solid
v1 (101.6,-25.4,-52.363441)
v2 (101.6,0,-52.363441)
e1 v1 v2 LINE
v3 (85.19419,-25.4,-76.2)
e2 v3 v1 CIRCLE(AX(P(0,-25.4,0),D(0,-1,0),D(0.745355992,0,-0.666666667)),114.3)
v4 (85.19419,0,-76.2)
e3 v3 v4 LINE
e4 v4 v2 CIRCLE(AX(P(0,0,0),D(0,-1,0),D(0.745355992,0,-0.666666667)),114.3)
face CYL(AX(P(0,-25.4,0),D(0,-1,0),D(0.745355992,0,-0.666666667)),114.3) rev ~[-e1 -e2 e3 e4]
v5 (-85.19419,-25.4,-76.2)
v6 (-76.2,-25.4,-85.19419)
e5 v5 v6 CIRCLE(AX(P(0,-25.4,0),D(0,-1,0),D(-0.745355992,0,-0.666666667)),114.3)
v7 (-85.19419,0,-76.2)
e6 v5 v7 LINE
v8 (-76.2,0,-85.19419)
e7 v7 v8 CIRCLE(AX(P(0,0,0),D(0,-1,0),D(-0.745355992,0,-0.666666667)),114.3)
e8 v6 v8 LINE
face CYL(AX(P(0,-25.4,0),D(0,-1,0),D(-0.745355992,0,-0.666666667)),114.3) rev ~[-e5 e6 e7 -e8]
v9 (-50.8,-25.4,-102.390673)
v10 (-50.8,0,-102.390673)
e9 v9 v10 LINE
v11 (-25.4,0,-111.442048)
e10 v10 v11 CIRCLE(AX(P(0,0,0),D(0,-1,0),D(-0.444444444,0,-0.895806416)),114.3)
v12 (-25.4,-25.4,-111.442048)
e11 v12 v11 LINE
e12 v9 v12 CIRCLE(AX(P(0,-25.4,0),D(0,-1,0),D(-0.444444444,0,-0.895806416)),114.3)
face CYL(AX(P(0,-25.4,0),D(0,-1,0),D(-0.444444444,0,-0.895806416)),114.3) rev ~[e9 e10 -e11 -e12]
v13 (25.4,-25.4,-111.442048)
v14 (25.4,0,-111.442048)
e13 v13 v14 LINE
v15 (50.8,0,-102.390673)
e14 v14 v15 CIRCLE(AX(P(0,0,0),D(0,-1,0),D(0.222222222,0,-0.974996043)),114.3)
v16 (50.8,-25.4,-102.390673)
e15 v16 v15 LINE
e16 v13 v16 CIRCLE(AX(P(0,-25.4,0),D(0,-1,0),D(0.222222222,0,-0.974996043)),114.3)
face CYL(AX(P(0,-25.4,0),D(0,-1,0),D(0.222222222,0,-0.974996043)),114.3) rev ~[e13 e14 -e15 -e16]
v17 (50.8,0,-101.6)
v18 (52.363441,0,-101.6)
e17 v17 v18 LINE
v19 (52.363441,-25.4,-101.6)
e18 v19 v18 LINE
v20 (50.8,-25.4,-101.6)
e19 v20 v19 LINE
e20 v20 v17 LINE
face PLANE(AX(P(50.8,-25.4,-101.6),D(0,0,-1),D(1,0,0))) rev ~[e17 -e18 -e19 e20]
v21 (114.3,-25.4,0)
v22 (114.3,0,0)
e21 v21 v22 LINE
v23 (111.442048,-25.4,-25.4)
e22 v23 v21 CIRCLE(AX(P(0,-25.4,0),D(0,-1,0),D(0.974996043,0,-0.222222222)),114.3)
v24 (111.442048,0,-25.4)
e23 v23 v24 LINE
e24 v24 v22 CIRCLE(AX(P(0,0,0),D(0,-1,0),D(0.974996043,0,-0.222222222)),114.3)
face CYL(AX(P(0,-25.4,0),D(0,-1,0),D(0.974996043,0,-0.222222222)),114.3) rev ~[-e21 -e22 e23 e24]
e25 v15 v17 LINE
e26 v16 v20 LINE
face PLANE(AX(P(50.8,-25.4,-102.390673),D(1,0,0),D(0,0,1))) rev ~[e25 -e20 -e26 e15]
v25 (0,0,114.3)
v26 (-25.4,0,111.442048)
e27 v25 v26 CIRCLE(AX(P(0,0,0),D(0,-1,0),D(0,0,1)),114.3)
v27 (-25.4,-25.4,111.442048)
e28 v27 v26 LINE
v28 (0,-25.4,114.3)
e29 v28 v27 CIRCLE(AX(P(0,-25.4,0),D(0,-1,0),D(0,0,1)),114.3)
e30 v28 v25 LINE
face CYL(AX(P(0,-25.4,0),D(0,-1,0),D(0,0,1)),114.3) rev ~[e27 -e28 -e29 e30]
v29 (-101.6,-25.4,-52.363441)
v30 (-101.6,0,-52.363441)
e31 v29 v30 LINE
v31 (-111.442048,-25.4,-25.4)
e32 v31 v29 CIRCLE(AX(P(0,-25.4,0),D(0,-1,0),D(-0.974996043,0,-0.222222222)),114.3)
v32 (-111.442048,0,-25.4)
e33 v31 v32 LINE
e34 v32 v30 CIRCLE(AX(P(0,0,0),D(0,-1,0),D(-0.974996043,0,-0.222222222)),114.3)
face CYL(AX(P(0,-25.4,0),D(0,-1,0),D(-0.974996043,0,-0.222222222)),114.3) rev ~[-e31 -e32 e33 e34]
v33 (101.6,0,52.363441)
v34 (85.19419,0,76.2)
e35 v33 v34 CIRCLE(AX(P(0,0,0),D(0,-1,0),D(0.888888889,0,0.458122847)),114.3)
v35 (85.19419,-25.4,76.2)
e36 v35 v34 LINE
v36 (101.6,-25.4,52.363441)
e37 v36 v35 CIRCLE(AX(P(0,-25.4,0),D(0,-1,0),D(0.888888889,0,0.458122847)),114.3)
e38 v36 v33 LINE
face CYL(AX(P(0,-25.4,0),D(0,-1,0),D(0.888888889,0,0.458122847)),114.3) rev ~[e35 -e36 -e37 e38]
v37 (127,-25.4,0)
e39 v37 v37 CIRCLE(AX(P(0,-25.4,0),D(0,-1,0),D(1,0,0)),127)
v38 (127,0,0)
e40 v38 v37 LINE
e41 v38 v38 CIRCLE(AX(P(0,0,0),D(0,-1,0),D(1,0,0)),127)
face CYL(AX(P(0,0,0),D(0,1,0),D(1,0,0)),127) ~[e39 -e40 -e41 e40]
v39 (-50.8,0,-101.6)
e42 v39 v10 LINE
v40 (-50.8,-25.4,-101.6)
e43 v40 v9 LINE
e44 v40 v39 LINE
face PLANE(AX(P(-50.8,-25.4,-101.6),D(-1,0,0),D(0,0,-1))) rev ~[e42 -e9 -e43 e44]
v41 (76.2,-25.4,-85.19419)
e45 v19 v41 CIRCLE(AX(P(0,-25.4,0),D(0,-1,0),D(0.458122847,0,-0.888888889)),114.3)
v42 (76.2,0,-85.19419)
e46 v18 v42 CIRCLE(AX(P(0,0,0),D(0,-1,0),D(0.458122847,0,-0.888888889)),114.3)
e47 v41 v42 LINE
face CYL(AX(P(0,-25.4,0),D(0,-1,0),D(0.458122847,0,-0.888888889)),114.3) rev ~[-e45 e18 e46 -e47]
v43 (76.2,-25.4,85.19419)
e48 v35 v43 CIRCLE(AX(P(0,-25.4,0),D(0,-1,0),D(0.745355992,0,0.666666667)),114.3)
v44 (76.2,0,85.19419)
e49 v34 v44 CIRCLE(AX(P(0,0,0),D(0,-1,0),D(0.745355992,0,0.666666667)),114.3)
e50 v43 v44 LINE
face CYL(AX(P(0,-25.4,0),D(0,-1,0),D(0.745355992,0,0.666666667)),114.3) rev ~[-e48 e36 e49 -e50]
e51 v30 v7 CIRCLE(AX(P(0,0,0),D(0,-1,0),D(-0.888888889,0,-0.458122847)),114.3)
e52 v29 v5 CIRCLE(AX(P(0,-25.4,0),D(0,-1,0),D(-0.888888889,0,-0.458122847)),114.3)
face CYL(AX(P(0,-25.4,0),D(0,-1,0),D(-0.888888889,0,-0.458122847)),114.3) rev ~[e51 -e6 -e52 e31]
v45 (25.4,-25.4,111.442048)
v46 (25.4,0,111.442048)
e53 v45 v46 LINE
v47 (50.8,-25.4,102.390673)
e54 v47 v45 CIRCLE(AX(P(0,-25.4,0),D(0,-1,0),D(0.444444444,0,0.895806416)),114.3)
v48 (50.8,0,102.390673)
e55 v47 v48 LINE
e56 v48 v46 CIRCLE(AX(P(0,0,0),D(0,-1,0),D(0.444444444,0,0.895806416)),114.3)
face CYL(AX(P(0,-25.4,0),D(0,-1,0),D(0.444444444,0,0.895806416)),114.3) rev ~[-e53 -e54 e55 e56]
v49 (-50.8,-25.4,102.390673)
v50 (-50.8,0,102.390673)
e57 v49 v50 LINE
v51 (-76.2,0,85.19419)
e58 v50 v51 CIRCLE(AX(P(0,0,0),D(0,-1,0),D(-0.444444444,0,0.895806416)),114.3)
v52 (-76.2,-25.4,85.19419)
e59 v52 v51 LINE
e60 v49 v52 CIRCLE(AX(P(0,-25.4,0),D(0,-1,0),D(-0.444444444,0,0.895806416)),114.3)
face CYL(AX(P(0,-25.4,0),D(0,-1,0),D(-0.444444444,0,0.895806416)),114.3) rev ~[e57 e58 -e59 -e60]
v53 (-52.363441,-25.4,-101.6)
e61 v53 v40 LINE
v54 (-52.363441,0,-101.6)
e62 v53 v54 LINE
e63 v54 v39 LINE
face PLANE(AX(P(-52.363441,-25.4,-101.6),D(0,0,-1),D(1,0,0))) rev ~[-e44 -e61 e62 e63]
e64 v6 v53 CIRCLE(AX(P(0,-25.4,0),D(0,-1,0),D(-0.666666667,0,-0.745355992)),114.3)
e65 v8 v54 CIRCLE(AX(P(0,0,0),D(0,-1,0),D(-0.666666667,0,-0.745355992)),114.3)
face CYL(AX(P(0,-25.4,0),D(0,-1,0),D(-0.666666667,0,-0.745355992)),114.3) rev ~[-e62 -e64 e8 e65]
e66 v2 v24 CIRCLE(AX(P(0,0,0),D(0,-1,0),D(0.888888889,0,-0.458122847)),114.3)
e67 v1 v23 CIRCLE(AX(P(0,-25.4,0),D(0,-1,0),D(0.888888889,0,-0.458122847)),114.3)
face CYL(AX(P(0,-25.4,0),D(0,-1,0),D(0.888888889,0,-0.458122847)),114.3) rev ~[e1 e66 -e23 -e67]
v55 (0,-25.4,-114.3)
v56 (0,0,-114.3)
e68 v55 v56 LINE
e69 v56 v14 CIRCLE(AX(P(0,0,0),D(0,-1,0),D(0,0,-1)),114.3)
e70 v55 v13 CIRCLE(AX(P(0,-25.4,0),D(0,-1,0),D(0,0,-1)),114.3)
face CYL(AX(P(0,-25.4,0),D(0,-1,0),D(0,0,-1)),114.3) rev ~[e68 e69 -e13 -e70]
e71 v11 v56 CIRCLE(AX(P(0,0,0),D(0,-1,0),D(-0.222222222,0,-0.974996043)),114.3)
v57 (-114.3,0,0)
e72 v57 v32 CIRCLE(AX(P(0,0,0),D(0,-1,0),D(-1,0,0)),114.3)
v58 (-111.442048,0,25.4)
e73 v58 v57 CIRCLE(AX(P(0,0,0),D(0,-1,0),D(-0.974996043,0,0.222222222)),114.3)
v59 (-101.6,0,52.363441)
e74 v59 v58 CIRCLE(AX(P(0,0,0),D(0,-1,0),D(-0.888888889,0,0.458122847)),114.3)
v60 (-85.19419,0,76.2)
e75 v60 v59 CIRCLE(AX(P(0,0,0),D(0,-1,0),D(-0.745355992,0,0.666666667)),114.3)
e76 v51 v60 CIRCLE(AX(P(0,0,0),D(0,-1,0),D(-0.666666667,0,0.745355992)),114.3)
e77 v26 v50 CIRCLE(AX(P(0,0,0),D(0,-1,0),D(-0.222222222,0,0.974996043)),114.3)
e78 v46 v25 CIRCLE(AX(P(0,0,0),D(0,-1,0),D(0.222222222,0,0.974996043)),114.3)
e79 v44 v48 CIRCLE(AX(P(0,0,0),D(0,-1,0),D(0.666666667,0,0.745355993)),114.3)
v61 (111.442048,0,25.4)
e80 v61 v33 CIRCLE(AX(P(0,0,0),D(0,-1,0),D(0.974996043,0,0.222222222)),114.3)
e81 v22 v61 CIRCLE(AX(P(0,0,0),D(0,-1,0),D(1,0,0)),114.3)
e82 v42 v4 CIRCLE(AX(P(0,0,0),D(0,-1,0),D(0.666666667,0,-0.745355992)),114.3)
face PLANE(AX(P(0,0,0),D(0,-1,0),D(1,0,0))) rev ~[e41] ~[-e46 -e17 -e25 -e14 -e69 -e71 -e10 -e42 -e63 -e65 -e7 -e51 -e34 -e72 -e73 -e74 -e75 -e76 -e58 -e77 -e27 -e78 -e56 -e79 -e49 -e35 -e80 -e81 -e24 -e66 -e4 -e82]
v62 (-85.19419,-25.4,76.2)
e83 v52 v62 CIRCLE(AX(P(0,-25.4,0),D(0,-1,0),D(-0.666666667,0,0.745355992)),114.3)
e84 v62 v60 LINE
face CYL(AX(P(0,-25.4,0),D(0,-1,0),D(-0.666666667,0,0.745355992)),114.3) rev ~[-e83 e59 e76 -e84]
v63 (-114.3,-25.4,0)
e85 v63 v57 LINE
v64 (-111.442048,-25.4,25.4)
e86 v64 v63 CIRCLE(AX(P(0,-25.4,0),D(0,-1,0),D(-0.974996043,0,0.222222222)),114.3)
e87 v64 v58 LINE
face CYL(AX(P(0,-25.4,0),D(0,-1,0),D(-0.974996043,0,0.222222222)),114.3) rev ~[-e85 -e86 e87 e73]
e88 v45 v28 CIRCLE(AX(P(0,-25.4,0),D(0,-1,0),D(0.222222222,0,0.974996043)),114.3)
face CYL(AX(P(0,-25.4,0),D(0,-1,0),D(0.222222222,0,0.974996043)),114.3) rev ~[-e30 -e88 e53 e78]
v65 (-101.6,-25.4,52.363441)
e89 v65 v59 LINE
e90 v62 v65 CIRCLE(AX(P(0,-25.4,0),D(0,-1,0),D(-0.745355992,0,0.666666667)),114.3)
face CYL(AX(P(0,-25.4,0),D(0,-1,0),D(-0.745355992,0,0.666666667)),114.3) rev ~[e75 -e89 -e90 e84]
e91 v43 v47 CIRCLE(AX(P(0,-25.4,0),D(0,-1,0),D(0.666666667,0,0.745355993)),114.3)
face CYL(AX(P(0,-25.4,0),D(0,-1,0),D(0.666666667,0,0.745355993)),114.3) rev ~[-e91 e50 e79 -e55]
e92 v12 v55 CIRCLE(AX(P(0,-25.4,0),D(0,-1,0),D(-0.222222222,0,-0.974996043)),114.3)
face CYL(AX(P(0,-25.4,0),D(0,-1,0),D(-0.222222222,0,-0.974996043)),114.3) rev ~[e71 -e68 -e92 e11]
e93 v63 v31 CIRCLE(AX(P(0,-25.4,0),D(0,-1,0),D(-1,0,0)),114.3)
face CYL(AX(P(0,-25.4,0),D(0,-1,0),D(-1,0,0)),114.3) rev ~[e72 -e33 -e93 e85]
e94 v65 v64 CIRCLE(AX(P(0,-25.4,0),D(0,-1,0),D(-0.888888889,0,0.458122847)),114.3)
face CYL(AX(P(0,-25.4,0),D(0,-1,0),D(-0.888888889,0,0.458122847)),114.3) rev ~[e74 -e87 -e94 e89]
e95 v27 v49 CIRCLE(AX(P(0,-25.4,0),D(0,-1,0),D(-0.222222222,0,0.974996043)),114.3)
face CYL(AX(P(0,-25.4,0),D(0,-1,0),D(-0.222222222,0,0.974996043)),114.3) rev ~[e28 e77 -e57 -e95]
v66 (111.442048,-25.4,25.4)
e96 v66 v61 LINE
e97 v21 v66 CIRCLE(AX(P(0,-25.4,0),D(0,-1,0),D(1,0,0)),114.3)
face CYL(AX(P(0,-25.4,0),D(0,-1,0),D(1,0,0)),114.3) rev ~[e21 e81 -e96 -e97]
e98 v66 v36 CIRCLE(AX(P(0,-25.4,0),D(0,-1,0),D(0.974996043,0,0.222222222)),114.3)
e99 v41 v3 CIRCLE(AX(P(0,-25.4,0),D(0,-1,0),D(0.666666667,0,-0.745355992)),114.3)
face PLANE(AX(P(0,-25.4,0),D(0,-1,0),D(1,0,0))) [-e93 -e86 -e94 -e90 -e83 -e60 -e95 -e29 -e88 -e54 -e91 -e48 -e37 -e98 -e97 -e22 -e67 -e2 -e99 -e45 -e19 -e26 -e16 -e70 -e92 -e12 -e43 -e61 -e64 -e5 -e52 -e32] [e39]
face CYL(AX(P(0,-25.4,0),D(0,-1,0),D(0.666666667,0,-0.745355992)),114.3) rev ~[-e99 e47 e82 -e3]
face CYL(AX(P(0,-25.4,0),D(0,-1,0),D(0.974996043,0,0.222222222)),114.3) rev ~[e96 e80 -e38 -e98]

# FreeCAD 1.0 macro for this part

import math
import FreeCAD as App
import Part
import Sketcher
Q = App.Units.Quantity

doc = App.newDocument("Part")
body = doc.addObject("PartDesign::Body", "Body")

sketch1 = body.newObject("Sketcher::SketchObject", "Sketch")
sketch1.AttachmentSupport = (doc.getObject("XZ_Plane"), [""])
sketch1.MapMode = "FlatFace"
sketch1.addGeometry(Part.Circle(App.Vector(0, 0, 0), App.Vector(0, 0, 1), 127), False)
sketch1.addConstraint(Sketcher.Constraint("Coincident", 0, 3, -1, 1))
sketch1.addConstraint(Sketcher.Constraint("Diameter", 0, Q("10 in")))
pad1 = body.newObject("PartDesign::Pad", "Pad")
pad1.Profile = sketch1
pad1.Length = Q("1 in")

sketch2 = body.newObject("Sketcher::SketchObject", "Sketch001")
sketch2.AttachmentSupport = (doc.getObject("XZ_Plane"), [""])
sketch2.MapMode = "FlatFace"
sketch2.AttachmentOffset = App.Placement(App.Vector(0, 0, 1 * 25.4), App.Rotation())
sketch2.addGeometry(Part.ArcOfCircle(Part.Circle(App.Vector(0, 0, 0), App.Vector(0, 0, 1), 114.3), math.radians(167.16), math.radians(180)), False)
sketch2.addGeometry(Part.ArcOfCircle(Part.Circle(App.Vector(0, 0, 0), App.Vector(0, 0, 1), 114.3), math.radians(180), math.radians(192.84)), False)
sketch2.addGeometry(Part.ArcOfCircle(Part.Circle(App.Vector(0, 0, 0), App.Vector(0, 0, 1), 114.3), math.radians(-167.16), math.radians(-152.73)), False)
sketch2.addGeometry(Part.ArcOfCircle(Part.Circle(App.Vector(0, 0, 0), App.Vector(0, 0, 1), 114.3), math.radians(-152.73), math.radians(-138.19)), False)
sketch2.addGeometry(Part.ArcOfCircle(Part.Circle(App.Vector(0, 0, 0), App.Vector(0, 0, 1), 114.3), math.radians(-138.19), math.radians(-131.81)), False)
sketch2.addGeometry(Part.ArcOfCircle(Part.Circle(App.Vector(0, 0, 0), App.Vector(0, 0, 1), 114.3), math.radians(-131.81), math.radians(-117.27)), False)
sketch2.addGeometry(Part.LineSegment(App.Vector(-52.4, -101.6, 0), App.Vector(-50.8, -101.6, 0)), False)
sketch2.addGeometry(Part.LineSegment(App.Vector(-50.8, -101.6, 0), App.Vector(-50.8, -102.4, 0)), False)
sketch2.addGeometry(Part.ArcOfCircle(Part.Circle(App.Vector(0, 0, 0), App.Vector(0, 0, 1), 114.3), math.radians(-116.39), math.radians(-102.84)), False)
sketch2.addGeometry(Part.ArcOfCircle(Part.Circle(App.Vector(0, 0, 0), App.Vector(0, 0, 1), 114.3), math.radians(-102.84), math.radians(-90)), False)
sketch2.addGeometry(Part.ArcOfCircle(Part.Circle(App.Vector(0, 0, 0), App.Vector(0, 0, 1), 114.3), math.radians(-90), math.radians(-77.16)), False)
sketch2.addGeometry(Part.ArcOfCircle(Part.Circle(App.Vector(0, 0, 0), App.Vector(0, 0, 1), 114.3), math.radians(-77.16), math.radians(-63.61)), False)
sketch2.addGeometry(Part.LineSegment(App.Vector(50.8, -102.4, 0), App.Vector(50.8, -101.6, 0)), False)
sketch2.addGeometry(Part.LineSegment(App.Vector(50.8, -101.6, 0), App.Vector(52.4, -101.6, 0)), False)
sketch2.addGeometry(Part.ArcOfCircle(Part.Circle(App.Vector(0, 0, 0), App.Vector(0, 0, 1), 114.3), math.radians(-62.73), math.radians(-48.19)), False)
sketch2.addGeometry(Part.ArcOfCircle(Part.Circle(App.Vector(0, 0, 0), App.Vector(0, 0, 1), 114.3), math.radians(-48.19), math.radians(-41.81)), False)
sketch2.addGeometry(Part.ArcOfCircle(Part.Circle(App.Vector(0, 0, 0), App.Vector(0, 0, 1), 114.3), math.radians(-41.81), math.radians(-27.27)), False)
sketch2.addGeometry(Part.ArcOfCircle(Part.Circle(App.Vector(0, 0, 0), App.Vector(0, 0, 1), 114.3), math.radians(-27.27), math.radians(-12.84)), False)
sketch2.addGeometry(Part.ArcOfCircle(Part.Circle(App.Vector(0, 0, 0), App.Vector(0, 0, 1), 114.3), math.radians(-12.84), math.radians(0)), False)
sketch2.addGeometry(Part.ArcOfCircle(Part.Circle(App.Vector(0, 0, 0), App.Vector(0, 0, 1), 114.3), math.radians(0), math.radians(12.84)), False)
sketch2.addGeometry(Part.ArcOfCircle(Part.Circle(App.Vector(0, 0, 0), App.Vector(0, 0, 1), 114.3), math.radians(12.84), math.radians(27.27)), False)
sketch2.addGeometry(Part.ArcOfCircle(Part.Circle(App.Vector(0, 0, 0), App.Vector(0, 0, 1), 114.3), math.radians(27.27), math.radians(41.81)), False)
sketch2.addGeometry(Part.ArcOfCircle(Part.Circle(App.Vector(0, 0, 0), App.Vector(0, 0, 1), 114.3), math.radians(41.81), math.radians(48.19)), False)
sketch2.addGeometry(Part.ArcOfCircle(Part.Circle(App.Vector(0, 0, 0), App.Vector(0, 0, 1), 114.3), math.radians(48.19), math.radians(63.61)), False)
sketch2.addGeometry(Part.ArcOfCircle(Part.Circle(App.Vector(0, 0, 0), App.Vector(0, 0, 1), 114.3), math.radians(63.61), math.radians(77.16)), False)
sketch2.addGeometry(Part.ArcOfCircle(Part.Circle(App.Vector(0, 0, 0), App.Vector(0, 0, 1), 114.3), math.radians(77.16), math.radians(90)), False)
sketch2.addGeometry(Part.ArcOfCircle(Part.Circle(App.Vector(0, 0, 0), App.Vector(0, 0, 1), 114.3), math.radians(90), math.radians(102.84)), False)
sketch2.addGeometry(Part.ArcOfCircle(Part.Circle(App.Vector(0, 0, 0), App.Vector(0, 0, 1), 114.3), math.radians(102.84), math.radians(116.39)), False)
sketch2.addGeometry(Part.ArcOfCircle(Part.Circle(App.Vector(0, 0, 0), App.Vector(0, 0, 1), 114.3), math.radians(116.39), math.radians(131.81)), False)
sketch2.addGeometry(Part.ArcOfCircle(Part.Circle(App.Vector(0, 0, 0), App.Vector(0, 0, 1), 114.3), math.radians(131.81), math.radians(138.19)), False)
sketch2.addGeometry(Part.ArcOfCircle(Part.Circle(App.Vector(0, 0, 0), App.Vector(0, 0, 1), 114.3), math.radians(138.19), math.radians(152.73)), False)
sketch2.addGeometry(Part.ArcOfCircle(Part.Circle(App.Vector(0, 0, 0), App.Vector(0, 0, 1), 114.3), math.radians(152.73), math.radians(167.16)), False)
sketch2.addConstraint(Sketcher.Constraint("Tangent", 0, 2, 1, 1))
sketch2.addConstraint(Sketcher.Constraint("Tangent", 1, 2, 2, 1))
sketch2.addConstraint(Sketcher.Constraint("Tangent", 2, 2, 3, 1))
sketch2.addConstraint(Sketcher.Constraint("Tangent", 3, 2, 4, 1))
sketch2.addConstraint(Sketcher.Constraint("Tangent", 4, 2, 5, 1))
sketch2.addConstraint(Sketcher.Constraint("Coincident", 5, 2, 6, 1))
sketch2.addConstraint(Sketcher.Constraint("Coincident", 6, 2, 7, 1))
sketch2.addConstraint(Sketcher.Constraint("Coincident", 7, 2, 8, 1))
sketch2.addConstraint(Sketcher.Constraint("Tangent", 8, 2, 9, 1))
sketch2.addConstraint(Sketcher.Constraint("Tangent", 9, 2, 10, 1))
sketch2.addConstraint(Sketcher.Constraint("Tangent", 10, 2, 11, 1))
sketch2.addConstraint(Sketcher.Constraint("Coincident", 11, 2, 12, 1))
sketch2.addConstraint(Sketcher.Constraint("Coincident", 12, 2, 13, 1))
sketch2.addConstraint(Sketcher.Constraint("Coincident", 13, 2, 14, 1))
sketch2.addConstraint(Sketcher.Constraint("Tangent", 14, 2, 15, 1))
sketch2.addConstraint(Sketcher.Constraint("Tangent", 15, 2, 16, 1))
sketch2.addConstraint(Sketcher.Constraint("Tangent", 16, 2, 17, 1))
sketch2.addConstraint(Sketcher.Constraint("Tangent", 17, 2, 18, 1))
sketch2.addConstraint(Sketcher.Constraint("Tangent", 18, 2, 19, 1))
sketch2.addConstraint(Sketcher.Constraint("Tangent", 19, 2, 20, 1))
sketch2.addConstraint(Sketcher.Constraint("Tangent", 20, 2, 21, 1))
sketch2.addConstraint(Sketcher.Constraint("Tangent", 21, 2, 22, 1))
sketch2.addConstraint(Sketcher.Constraint("Tangent", 22, 2, 23, 1))
sketch2.addConstraint(Sketcher.Constraint("Tangent", 23, 2, 24, 1))
sketch2.addConstraint(Sketcher.Constraint("Tangent", 24, 2, 25, 1))
sketch2.addConstraint(Sketcher.Constraint("Tangent", 25, 2, 26, 1))
sketch2.addConstraint(Sketcher.Constraint("Tangent", 26, 2, 27, 1))
sketch2.addConstraint(Sketcher.Constraint("Tangent", 27, 2, 28, 1))
sketch2.addConstraint(Sketcher.Constraint("Tangent", 28, 2, 29, 1))
sketch2.addConstraint(Sketcher.Constraint("Tangent", 29, 2, 30, 1))
sketch2.addConstraint(Sketcher.Constraint("Tangent", 30, 2, 31, 1))
sketch2.addConstraint(Sketcher.Constraint("Tangent", 31, 2, 0, 1))
sketch2.addConstraint(Sketcher.Constraint("Horizontal", 6))
sketch2.addConstraint(Sketcher.Constraint("Vertical", 7))
sketch2.addConstraint(Sketcher.Constraint("Vertical", 12))
sketch2.addConstraint(Sketcher.Constraint("Horizontal", 13))
sketch2.addConstraint(Sketcher.Constraint("Coincident", 0, 3, -1, 1))
sketch2.addConstraint(Sketcher.Constraint("Coincident", 2, 3, -1, 1))
sketch2.addConstraint(Sketcher.Constraint("Coincident", 4, 3, -1, 1))
sketch2.addConstraint(Sketcher.Constraint("Coincident", 8, 3, -1, 1))
sketch2.addConstraint(Sketcher.Constraint("Coincident", 10, 3, -1, 1))
sketch2.addConstraint(Sketcher.Constraint("Coincident", 14, 3, -1, 1))
sketch2.addConstraint(Sketcher.Constraint("Coincident", 16, 3, -1, 1))
sketch2.addConstraint(Sketcher.Constraint("Coincident", 18, 3, -1, 1))
sketch2.addConstraint(Sketcher.Constraint("Coincident", 20, 3, -1, 1))
sketch2.addConstraint(Sketcher.Constraint("Coincident", 22, 3, -1, 1))
sketch2.addConstraint(Sketcher.Constraint("Coincident", 24, 3, -1, 1))
sketch2.addConstraint(Sketcher.Constraint("Coincident", 26, 3, -1, 1))
sketch2.addConstraint(Sketcher.Constraint("Coincident", 28, 3, -1, 1))
sketch2.addConstraint(Sketcher.Constraint("Coincident", 30, 3, -1, 1))
sketch2.addConstraint(Sketcher.Constraint("Equal", 4, 5))
sketch2.addConstraint(Sketcher.Constraint("Equal", 5, 8))
sketch2.addConstraint(Sketcher.Constraint("Equal", 10, 11))
sketch2.addConstraint(Sketcher.Constraint("Symmetric", 6, 2, 12, 2, -2))
sketch2.addConstraint(Sketcher.Constraint("PointOnObject", 0, 2, -1))
sketch2.addConstraint(Sketcher.Constraint("PointOnObject", 9, 2, -2))
sketch2.addConstraint(Sketcher.Constraint("PointOnObject", 18, 2, -1))
sketch2.addConstraint(Sketcher.Constraint("PointOnObject", 25, 2, -2))
sketch2.addConstraint(Sketcher.Constraint("Horizontal", 8, 2, 10, 2))
sketch2.addConstraint(Sketcher.Constraint("Horizontal", 4, 2, 14, 2))
sketch2.addConstraint(Sketcher.Constraint("Horizontal", 3, 2, 15, 2))
sketch2.addConstraint(Sketcher.Constraint("Horizontal", 2, 2, 16, 2))
sketch2.addConstraint(Sketcher.Constraint("Horizontal", 1, 2, 17, 2))
sketch2.addConstraint(Sketcher.Constraint("Horizontal", 24, 2, 26, 2))
sketch2.addConstraint(Sketcher.Constraint("Horizontal", 23, 2, 27, 2))
sketch2.addConstraint(Sketcher.Constraint("Horizontal", 22, 2, 28, 2))
sketch2.addConstraint(Sketcher.Constraint("Horizontal", 21, 2, 29, 2))
sketch2.addConstraint(Sketcher.Constraint("Horizontal", 20, 2, 30, 2))
sketch2.addConstraint(Sketcher.Constraint("Horizontal", 19, 2, 31, 2))
sketch2.addConstraint(Sketcher.Constraint("Vertical", 17, 2, 19, 2))
sketch2.addConstraint(Sketcher.Constraint("Vertical", 16, 2, 20, 2))
sketch2.addConstraint(Sketcher.Constraint("Vertical", 15, 2, 21, 2))
sketch2.addConstraint(Sketcher.Constraint("Vertical", 14, 2, 22, 2))
sketch2.addConstraint(Sketcher.Constraint("Vertical", 12, 2, 23, 2))
sketch2.addConstraint(Sketcher.Constraint("Vertical", 10, 2, 24, 2))
sketch2.addConstraint(Sketcher.Constraint("Radius", 0, Q("4.5 in")))
sketch2.addConstraint(Sketcher.Constraint("DistanceY", 1, 2, -1, 1, Q("1 in")))
sketch2.addConstraint(Sketcher.Constraint("DistanceX", 2, 2, -1, 1, Q("4 in")))
sketch2.addConstraint(Sketcher.Constraint("DistanceY", 3, 2, -1, 1, Q("3 in")))
sketch2.addConstraint(Sketcher.Constraint("DistanceX", 4, 2, -1, 1, Q("3 in")))
sketch2.addConstraint(Sketcher.Constraint("DistanceY", 5, 2, -1, 1, Q("4 in")))
sketch2.addConstraint(Sketcher.Constraint("DistanceX", 6, 2, -1, 1, Q("2 in")))
sketch2.addConstraint(Sketcher.Constraint("DistanceX", 8, 2, -1, 1, Q("1 in")))
pocket1 = body.newObject("PartDesign::Pocket", "Pocket")
pocket1.Profile = sketch2
pocket1.Length = Q("1 in")

doc.recompute()
